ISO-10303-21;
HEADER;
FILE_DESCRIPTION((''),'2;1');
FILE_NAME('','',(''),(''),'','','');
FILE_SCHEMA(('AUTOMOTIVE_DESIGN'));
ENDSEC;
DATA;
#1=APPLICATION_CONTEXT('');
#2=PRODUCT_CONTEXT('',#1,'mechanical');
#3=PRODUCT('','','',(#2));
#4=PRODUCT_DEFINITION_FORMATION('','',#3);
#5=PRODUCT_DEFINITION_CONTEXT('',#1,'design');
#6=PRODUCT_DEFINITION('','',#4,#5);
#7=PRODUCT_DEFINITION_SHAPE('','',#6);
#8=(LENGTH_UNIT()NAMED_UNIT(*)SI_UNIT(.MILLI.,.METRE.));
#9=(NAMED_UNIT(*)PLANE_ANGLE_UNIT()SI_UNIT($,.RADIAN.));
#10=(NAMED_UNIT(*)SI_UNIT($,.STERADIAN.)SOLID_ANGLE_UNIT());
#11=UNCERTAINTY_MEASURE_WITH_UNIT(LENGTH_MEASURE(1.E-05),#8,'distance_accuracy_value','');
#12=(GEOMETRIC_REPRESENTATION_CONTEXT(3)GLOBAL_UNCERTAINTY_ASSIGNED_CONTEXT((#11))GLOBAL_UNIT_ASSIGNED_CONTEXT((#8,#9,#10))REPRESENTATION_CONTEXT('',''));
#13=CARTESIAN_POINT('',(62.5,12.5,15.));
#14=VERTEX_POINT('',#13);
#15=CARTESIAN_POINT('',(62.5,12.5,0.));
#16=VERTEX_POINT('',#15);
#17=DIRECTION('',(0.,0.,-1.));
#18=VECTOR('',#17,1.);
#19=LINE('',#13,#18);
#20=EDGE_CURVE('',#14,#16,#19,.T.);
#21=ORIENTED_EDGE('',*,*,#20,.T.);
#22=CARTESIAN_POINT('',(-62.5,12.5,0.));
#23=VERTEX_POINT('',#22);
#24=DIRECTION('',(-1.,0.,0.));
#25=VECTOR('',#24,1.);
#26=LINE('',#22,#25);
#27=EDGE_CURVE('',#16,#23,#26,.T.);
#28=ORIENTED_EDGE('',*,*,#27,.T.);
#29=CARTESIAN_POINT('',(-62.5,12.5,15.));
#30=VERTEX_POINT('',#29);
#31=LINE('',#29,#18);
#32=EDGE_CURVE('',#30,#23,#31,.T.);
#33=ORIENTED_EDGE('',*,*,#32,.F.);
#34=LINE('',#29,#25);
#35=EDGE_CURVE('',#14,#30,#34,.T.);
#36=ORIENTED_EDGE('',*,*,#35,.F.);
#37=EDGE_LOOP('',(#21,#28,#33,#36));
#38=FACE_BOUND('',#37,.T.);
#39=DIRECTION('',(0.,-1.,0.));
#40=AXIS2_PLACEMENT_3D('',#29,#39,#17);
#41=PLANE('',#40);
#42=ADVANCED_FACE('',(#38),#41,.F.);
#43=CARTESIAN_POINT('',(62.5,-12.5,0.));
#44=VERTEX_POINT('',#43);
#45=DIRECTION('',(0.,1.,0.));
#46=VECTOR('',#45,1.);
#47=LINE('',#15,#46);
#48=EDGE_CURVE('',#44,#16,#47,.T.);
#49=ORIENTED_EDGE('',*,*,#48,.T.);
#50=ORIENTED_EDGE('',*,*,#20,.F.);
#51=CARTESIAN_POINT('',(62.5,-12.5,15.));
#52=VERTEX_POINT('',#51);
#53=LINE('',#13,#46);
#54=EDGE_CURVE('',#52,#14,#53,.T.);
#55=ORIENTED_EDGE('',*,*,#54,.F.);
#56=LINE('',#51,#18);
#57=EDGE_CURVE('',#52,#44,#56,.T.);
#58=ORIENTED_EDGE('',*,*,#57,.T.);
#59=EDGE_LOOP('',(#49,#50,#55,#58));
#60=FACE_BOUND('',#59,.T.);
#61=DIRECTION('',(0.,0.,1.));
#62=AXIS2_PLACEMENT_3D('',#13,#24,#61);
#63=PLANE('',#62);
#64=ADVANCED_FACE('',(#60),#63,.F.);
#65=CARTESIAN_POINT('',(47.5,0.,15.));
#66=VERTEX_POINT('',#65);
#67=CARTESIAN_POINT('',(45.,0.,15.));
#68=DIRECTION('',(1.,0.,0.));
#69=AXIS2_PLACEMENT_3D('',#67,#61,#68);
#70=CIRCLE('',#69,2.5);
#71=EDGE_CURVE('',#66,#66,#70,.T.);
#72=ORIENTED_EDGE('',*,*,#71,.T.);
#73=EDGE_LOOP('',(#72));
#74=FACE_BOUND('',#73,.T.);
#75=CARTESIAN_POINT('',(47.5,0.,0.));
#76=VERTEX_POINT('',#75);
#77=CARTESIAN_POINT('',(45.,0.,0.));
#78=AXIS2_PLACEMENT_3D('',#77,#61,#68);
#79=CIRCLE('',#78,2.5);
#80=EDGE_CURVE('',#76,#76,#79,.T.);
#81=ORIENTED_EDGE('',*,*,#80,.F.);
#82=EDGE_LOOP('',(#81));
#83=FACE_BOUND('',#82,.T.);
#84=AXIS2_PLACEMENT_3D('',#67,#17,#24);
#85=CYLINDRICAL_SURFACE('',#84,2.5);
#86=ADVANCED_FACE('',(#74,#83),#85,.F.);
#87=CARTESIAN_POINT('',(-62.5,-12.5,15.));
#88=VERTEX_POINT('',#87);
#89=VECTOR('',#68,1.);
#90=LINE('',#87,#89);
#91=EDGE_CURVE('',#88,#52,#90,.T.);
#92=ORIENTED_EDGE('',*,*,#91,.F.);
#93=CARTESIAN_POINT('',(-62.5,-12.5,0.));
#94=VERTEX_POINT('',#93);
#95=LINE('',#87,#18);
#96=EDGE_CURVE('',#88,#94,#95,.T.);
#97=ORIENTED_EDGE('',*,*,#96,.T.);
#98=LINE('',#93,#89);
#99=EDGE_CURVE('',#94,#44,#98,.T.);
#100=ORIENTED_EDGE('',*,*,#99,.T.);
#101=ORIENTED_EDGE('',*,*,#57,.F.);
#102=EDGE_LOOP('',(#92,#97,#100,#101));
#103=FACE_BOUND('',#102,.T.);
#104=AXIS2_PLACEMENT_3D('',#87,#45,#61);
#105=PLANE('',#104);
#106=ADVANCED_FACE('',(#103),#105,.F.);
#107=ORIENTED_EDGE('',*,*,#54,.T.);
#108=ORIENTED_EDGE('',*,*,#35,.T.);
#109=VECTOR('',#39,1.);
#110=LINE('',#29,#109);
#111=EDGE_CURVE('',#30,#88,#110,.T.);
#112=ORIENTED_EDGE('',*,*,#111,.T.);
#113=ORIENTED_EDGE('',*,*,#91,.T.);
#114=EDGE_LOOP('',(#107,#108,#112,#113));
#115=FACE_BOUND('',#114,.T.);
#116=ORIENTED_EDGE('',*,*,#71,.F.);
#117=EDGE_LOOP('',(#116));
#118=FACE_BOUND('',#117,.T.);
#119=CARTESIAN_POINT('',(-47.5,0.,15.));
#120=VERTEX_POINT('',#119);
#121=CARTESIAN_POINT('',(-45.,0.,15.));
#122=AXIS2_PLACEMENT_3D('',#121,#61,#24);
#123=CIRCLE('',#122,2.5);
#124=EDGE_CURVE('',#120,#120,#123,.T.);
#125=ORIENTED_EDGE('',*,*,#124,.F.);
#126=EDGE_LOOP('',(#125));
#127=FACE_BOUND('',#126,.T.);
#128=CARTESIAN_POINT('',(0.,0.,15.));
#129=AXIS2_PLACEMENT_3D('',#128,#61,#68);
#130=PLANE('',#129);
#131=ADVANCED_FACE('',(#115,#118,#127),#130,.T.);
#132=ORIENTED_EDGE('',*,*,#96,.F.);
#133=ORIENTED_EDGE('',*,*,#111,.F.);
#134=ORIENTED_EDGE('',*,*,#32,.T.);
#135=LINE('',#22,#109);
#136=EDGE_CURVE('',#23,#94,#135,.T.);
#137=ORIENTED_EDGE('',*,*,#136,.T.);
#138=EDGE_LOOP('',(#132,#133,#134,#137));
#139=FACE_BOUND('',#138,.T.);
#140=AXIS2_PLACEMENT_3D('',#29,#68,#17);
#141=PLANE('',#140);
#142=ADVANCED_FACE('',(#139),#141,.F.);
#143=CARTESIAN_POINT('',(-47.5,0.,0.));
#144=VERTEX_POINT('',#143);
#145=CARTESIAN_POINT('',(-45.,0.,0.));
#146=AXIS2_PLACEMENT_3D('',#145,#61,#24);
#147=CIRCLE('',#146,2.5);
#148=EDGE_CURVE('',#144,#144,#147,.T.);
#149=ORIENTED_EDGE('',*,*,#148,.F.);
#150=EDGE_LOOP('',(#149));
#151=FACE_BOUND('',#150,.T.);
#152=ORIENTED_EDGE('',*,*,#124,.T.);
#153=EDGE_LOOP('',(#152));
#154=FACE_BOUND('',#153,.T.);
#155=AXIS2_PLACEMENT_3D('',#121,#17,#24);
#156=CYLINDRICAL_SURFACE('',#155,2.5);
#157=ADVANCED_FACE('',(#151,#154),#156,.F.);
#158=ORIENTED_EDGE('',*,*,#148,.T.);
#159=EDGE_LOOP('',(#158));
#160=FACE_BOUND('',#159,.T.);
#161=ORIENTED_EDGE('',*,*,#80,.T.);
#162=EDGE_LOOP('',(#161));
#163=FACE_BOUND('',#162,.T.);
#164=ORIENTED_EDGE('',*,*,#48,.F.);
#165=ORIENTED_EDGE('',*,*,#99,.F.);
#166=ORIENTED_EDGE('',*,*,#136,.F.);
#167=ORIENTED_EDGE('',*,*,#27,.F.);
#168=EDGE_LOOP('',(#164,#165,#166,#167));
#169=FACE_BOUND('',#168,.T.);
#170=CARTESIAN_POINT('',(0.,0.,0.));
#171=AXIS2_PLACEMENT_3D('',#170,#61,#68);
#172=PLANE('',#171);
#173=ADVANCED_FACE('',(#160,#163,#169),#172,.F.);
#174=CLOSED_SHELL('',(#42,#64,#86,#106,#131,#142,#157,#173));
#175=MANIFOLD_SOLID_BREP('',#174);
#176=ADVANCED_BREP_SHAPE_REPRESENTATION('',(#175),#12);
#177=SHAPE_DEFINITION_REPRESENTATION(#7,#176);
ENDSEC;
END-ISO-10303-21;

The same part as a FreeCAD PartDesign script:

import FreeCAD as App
import Part
import Sketcher

V = App.Vector
Q = App.Units.Quantity

doc = App.newDocument("Part")
body = doc.addObject("PartDesign::Body", "Body")

# Sketch on XY plane
sketch1 = body.newObject("Sketcher::SketchObject", "Sketch")
sketch1.AttachmentSupport = (doc.getObject("XY_Plane"), [""])
sketch1.MapMode = "FlatFace"
sketch1.addGeometry(Part.LineSegment(V(-62.5, 12.5, 0), V(-62.5, -12.5, 0)), False)
sketch1.addGeometry(Part.LineSegment(V(-62.5, -12.5, 0), V(62.5, -12.5, 0)), False)
sketch1.addGeometry(Part.LineSegment(V(62.5, -12.5, 0), V(62.5, 12.5, 0)), False)
sketch1.addGeometry(Part.LineSegment(V(62.5, 12.5, 0), V(-62.5, 12.5, 0)), False)
sketch1.addGeometry(Part.Circle(V(-45, 0, 0), V(0, 0, 1), 2.5), False)
sketch1.addGeometry(Part.Circle(V(45, 0, 0), V(0, 0, 1), 2.5), False)
sketch1.addConstraint(Sketcher.Constraint("Coincident", 0, 2, 1, 1))
sketch1.addConstraint(Sketcher.Constraint("Coincident", 1, 2, 2, 1))
sketch1.addConstraint(Sketcher.Constraint("Coincident", 2, 2, 3, 1))
sketch1.addConstraint(Sketcher.Constraint("Coincident", 3, 2, 0, 1))
sketch1.addConstraint(Sketcher.Constraint("Vertical", 0))
sketch1.addConstraint(Sketcher.Constraint("Horizontal", 1))
sketch1.addConstraint(Sketcher.Constraint("Vertical", 2))
sketch1.addConstraint(Sketcher.Constraint("Horizontal", 3))
sketch1.addConstraint(Sketcher.Constraint("Equal", 4, 5))
sketch1.addConstraint(Sketcher.Constraint("Symmetric", 4, 3, 5, 3, -1, 1))
sketch1.addConstraint(Sketcher.Constraint("Symmetric", 0, 2, 2, 2, -1, 1))
sketch1.addConstraint(Sketcher.Constraint("PointOnObject", 4, 3, -1))
sketch1.addConstraint(Sketcher.Constraint("Diameter", 4, Q("5 mm")))
sketch1.addConstraint(Sketcher.Constraint("DistanceX", 1, 1, 1, 2, Q("125 mm")))
sketch1.addConstraint(Sketcher.Constraint("DistanceY", 0, 2, 0, 1, Q("25 mm")))
sketch1.addConstraint(Sketcher.Constraint("DistanceX", 4, 3, -1, 1, Q("45 mm")))
pad1 = body.newObject("PartDesign::Pad", "Pad")
pad1.Profile = sketch1
pad1.Length = 15

doc.recompute()
